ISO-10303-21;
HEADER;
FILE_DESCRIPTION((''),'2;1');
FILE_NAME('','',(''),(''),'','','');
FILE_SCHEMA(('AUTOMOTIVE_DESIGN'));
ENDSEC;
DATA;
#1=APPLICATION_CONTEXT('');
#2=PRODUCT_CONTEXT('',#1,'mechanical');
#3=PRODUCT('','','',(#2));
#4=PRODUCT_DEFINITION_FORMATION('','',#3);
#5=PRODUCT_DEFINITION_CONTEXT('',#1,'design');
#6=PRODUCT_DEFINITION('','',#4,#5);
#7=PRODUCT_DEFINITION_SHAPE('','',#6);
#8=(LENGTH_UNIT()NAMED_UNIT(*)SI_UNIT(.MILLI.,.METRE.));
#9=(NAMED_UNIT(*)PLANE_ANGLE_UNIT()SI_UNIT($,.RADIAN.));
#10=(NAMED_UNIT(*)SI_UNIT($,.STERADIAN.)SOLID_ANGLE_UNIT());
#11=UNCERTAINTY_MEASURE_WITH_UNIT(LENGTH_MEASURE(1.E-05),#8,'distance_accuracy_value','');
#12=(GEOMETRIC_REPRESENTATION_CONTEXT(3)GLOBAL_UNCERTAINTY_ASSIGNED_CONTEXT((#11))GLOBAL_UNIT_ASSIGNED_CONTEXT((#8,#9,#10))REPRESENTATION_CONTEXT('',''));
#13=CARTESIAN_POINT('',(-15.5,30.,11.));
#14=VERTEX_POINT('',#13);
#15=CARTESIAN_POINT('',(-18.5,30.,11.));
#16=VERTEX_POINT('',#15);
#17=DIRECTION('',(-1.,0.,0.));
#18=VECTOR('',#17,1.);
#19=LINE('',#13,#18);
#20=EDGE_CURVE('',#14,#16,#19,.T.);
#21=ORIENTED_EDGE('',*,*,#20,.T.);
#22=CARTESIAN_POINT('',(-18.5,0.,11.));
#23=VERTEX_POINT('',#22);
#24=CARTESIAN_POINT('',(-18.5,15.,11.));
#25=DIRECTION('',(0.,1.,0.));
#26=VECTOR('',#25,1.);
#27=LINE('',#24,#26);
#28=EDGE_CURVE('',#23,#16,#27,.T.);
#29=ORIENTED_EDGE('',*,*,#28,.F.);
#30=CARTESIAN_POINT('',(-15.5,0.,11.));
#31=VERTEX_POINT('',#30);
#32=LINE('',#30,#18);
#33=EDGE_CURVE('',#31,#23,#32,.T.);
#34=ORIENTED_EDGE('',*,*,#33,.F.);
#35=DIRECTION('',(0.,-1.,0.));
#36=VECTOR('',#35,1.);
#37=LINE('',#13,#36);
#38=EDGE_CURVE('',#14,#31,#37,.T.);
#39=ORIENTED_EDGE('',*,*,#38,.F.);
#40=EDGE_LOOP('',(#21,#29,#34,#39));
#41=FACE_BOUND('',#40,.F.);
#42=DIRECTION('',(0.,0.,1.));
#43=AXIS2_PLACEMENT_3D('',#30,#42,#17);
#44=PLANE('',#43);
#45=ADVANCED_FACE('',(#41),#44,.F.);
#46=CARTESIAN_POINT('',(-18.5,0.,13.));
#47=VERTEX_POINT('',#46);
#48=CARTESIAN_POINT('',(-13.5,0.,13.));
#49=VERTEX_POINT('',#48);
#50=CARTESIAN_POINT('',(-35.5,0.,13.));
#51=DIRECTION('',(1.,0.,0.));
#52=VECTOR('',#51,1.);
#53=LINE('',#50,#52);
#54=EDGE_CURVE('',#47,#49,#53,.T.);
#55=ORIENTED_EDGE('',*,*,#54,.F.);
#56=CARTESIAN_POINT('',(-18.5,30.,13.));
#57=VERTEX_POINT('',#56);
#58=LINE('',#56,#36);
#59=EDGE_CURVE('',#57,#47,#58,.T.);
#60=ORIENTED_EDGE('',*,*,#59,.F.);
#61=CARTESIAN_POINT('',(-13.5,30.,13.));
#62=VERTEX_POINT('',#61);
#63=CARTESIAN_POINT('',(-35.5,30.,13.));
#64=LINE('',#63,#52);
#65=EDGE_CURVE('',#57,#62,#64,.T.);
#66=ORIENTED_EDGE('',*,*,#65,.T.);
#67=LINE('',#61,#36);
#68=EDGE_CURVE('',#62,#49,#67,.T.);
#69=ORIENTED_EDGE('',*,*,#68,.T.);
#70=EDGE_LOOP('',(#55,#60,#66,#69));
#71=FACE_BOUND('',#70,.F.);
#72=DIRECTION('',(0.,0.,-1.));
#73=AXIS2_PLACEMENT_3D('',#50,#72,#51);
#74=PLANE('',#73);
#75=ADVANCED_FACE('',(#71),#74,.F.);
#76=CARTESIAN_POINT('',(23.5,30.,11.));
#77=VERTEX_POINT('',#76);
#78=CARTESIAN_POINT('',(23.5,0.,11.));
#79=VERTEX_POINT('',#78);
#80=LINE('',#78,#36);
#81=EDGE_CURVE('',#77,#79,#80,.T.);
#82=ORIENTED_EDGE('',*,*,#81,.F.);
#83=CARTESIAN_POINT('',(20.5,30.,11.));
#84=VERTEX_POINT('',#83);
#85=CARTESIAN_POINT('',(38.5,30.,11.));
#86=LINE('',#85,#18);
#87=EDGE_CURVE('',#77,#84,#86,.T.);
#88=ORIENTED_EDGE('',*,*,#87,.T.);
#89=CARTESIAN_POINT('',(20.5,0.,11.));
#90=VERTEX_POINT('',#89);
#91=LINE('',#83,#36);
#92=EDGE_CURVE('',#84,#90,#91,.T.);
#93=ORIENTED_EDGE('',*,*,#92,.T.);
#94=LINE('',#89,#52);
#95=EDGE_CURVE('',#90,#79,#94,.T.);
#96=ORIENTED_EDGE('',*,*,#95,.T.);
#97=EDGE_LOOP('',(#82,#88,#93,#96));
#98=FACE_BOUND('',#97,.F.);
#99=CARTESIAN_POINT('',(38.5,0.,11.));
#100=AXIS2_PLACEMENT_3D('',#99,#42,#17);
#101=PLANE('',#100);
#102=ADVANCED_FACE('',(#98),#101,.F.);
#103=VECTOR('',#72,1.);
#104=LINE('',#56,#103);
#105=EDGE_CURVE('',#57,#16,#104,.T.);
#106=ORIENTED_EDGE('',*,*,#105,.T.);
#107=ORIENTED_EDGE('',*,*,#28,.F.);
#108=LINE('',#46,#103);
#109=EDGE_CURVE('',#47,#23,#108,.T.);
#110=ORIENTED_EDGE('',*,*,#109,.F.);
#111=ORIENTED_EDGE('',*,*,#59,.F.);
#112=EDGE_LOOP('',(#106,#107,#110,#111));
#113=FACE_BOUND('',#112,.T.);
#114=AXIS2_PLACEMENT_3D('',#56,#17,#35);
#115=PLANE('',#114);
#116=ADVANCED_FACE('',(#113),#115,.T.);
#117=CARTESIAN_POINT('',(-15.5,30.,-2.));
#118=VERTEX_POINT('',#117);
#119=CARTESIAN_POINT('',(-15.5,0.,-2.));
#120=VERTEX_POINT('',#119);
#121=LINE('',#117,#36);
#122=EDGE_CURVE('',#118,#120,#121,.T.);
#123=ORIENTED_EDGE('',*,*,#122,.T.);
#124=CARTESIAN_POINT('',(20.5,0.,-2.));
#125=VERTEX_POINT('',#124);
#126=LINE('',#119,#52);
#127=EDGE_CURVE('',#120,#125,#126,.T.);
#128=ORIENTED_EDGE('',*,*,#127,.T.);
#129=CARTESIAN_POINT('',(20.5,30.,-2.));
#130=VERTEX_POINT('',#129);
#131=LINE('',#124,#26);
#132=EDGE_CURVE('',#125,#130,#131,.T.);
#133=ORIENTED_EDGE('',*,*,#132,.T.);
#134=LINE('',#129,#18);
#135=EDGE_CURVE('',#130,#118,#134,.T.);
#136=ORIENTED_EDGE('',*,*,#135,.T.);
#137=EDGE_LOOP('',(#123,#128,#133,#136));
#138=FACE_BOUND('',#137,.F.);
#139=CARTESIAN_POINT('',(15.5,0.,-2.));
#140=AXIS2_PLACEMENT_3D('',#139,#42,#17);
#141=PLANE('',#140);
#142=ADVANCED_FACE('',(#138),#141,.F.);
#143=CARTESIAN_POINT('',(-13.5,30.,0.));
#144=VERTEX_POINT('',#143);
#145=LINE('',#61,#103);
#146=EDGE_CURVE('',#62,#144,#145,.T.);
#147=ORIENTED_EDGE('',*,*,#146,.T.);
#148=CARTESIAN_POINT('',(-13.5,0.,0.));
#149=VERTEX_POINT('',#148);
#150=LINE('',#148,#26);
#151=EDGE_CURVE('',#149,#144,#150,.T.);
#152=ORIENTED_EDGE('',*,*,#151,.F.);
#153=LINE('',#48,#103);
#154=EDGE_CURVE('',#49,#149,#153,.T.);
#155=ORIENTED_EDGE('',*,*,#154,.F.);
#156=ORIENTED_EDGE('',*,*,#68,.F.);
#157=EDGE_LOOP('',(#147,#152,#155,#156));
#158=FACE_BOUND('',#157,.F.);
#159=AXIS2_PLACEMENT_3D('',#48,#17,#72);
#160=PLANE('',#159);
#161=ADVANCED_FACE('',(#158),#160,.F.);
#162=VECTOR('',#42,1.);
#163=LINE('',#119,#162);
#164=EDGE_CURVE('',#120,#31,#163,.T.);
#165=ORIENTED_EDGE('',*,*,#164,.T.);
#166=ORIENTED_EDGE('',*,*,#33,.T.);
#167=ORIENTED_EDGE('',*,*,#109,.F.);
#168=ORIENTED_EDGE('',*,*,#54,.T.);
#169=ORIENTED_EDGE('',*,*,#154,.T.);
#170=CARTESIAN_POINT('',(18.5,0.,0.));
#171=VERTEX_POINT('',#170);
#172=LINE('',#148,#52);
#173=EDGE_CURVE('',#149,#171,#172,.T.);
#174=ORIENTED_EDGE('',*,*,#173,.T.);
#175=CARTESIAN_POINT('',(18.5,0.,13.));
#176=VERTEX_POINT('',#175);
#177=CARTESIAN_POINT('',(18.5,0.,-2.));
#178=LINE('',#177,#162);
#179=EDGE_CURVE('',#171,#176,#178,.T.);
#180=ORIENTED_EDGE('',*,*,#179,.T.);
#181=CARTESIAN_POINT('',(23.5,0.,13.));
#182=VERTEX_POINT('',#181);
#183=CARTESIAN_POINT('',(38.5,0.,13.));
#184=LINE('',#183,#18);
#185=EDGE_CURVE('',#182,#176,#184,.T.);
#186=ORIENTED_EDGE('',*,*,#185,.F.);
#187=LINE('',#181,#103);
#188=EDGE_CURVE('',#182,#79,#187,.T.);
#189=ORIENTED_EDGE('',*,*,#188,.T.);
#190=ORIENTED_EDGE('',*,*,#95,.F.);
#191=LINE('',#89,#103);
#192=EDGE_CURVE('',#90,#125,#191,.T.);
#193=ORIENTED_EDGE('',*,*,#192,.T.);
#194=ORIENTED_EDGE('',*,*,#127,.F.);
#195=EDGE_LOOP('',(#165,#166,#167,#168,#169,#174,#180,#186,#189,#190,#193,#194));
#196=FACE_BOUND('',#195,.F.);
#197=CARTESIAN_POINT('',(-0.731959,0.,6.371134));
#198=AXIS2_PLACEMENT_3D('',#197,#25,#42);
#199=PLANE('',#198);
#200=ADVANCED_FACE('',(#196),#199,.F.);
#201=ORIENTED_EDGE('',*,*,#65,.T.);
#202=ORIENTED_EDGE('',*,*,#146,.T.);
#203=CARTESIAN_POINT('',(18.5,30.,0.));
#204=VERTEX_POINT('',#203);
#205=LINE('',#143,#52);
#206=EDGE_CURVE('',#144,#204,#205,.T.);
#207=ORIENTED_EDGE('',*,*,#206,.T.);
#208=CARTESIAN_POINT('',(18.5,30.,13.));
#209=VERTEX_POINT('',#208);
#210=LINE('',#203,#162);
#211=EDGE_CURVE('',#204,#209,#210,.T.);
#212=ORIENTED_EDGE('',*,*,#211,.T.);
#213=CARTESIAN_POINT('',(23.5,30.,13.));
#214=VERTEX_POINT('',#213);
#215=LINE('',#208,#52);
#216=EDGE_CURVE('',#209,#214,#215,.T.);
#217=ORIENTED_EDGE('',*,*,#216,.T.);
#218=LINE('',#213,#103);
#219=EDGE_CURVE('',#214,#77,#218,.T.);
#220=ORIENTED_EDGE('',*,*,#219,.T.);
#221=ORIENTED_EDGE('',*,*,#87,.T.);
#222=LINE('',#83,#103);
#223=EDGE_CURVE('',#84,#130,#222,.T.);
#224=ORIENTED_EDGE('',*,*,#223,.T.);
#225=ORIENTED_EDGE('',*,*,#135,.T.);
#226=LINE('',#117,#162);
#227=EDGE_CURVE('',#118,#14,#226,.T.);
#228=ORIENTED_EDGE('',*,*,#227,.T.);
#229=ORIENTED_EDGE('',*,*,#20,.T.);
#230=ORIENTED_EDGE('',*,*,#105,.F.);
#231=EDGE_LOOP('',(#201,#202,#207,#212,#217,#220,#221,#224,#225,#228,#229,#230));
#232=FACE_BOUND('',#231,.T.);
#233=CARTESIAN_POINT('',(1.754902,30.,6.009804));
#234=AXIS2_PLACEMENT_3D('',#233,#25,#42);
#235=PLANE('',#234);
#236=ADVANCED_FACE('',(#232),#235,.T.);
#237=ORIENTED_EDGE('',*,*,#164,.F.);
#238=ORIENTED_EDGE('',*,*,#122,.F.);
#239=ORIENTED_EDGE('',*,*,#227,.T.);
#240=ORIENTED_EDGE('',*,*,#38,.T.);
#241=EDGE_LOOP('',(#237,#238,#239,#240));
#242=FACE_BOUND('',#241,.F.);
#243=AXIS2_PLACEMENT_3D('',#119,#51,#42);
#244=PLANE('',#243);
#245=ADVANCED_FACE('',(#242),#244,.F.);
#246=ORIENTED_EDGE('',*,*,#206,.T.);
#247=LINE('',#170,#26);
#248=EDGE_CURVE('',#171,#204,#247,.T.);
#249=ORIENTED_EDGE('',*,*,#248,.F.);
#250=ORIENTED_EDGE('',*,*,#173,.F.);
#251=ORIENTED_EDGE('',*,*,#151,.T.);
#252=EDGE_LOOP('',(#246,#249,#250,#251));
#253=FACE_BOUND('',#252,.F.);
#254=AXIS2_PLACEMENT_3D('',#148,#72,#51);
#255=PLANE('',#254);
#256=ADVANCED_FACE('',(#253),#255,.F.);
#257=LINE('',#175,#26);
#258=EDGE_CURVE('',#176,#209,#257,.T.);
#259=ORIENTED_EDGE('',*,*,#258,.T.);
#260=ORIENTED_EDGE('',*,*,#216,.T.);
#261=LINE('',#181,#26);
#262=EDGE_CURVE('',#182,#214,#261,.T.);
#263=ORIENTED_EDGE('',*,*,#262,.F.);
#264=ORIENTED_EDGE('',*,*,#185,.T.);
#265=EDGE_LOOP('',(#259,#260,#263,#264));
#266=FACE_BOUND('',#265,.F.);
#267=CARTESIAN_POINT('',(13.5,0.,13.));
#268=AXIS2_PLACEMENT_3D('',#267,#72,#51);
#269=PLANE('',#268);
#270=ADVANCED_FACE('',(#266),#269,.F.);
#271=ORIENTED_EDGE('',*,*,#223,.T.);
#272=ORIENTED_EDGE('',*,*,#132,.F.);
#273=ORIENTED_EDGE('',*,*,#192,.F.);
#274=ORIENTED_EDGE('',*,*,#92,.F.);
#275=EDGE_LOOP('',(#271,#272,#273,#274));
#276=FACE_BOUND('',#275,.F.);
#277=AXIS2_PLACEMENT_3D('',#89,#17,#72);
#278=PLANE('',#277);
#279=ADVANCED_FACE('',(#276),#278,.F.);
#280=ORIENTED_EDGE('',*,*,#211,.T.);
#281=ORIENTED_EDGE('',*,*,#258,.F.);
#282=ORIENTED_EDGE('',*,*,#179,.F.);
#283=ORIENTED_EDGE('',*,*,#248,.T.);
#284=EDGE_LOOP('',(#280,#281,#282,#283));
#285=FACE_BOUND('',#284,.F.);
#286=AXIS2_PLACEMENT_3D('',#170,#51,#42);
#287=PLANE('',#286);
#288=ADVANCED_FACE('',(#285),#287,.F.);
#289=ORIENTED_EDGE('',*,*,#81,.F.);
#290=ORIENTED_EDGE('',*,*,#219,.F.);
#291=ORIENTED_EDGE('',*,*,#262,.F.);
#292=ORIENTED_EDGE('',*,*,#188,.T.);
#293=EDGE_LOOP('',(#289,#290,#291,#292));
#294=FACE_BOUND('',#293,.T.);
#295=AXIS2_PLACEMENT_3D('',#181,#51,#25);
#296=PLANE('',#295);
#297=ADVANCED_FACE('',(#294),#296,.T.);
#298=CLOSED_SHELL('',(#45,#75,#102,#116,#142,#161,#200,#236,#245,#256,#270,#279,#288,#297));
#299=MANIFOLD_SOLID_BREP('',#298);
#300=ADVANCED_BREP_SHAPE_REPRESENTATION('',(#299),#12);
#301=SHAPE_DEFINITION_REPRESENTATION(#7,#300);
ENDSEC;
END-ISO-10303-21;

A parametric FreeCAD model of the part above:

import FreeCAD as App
import Part
import Sketcher


def add_polygon(sketch, points):
    """Adds a closed chain of lines whose ends are joined by coincident constraints."""
    first, n = sketch.GeometryCount, len(points)
    for a, b in zip(points, points[1:] + points[:1]):
        sketch.addGeometry(Part.LineSegment(App.Vector(*a, 0), App.Vector(*b, 0)), False)
    for i in range(n):
        sketch.addConstraint(Sketcher.Constraint("Coincident", first + i, 2, first + (i + 1) % n, 1))

doc = App.newDocument("Part")
params = doc.addObject("Spreadsheet::Sheet", "Params")
for row, (alias, value) in enumerate([
    ("sketch1_width", "22 mm"),
    ("sketch1_width2", "20 mm"),
    ("sketch1_width3", "31 mm"),
    ("sketch1_height", "13 mm"),
    ("sketch1_height2", "2 mm"),
    ("pad1_length", "20 mm"),
    ("sketch2_width", "18 mm"),
    ("sketch2_width2", "20 mm"),
    ("sketch2_width3", "32 mm"),
    ("sketch2_width4", "22 mm"),
    ("sketch2_height", "13 mm"),
    ("pad2_length", "30 mm"),
    ("sketch3_width", "5 mm"),
    ("sketch3_height", "20 mm"),
    ("pocket1_length", "15 mm"),
    ("sketch4_width", "5 mm"),
    ("sketch4_height", "20 mm"),
    ("pad3_length", "2 mm"),
    ("sketch5_width", "17 mm"),
    ("sketch5_width2", "15 mm"),
    ("sketch5_height", "30 mm"),
], start=1):
    params.set(f"A{row}", alias)
    params.set(f"B{row}", "=" + value)
    params.setAlias(f"B{row}", alias)

body = doc.addObject("PartDesign::Body", "Body")

sketch1 = body.newObject("Sketcher::SketchObject", "Sketch")
sketch1.AttachmentSupport = (doc.getObject("XZ_Plane"), [""])
sketch1.MapMode = "FlatFace"
add_polygon(sketch1, [(-13.5, 0), (-13.5, 13), (-35.5, 13), (-35.5, 11), (-15.5, 11), (-15.5, -2), (15.5, -2), (15.5, 11), (33.5, 11), (33.5, 13), (13.5, 13), (13.5, 0)])
sketch1.addConstraint(Sketcher.Constraint("Vertical", 0))
sketch1.addConstraint(Sketcher.Constraint("Horizontal", 1))
sketch1.addConstraint(Sketcher.Constraint("Vertical", 2))
sketch1.addConstraint(Sketcher.Constraint("Horizontal", 3))
sketch1.addConstraint(Sketcher.Constraint("Vertical", 4))
sketch1.addConstraint(Sketcher.Constraint("Horizontal", 5))
sketch1.addConstraint(Sketcher.Constraint("Vertical", 6))
sketch1.addConstraint(Sketcher.Constraint("Horizontal", 7))
sketch1.addConstraint(Sketcher.Constraint("Vertical", 8))
sketch1.addConstraint(Sketcher.Constraint("Horizontal", 9))
sketch1.addConstraint(Sketcher.Constraint("Vertical", 10))
sketch1.addConstraint(Sketcher.Constraint("Horizontal", 11))
sketch1.addConstraint(Sketcher.Constraint("Symmetric", 10, 2, 11, 2, -1, 1))
sketch1.addConstraint(Sketcher.Constraint("Symmetric", 3, 2, 6, 2, -2))
sketch1.addConstraint(Sketcher.Constraint("Horizontal", 1, 2, 8, 2))
sketch1.addConstraint(Sketcher.Constraint("Equal", 3, 9))
sketch1.addConstraint(Sketcher.Constraint("Equal", 0, 4))
sketch1.addConstraint(Sketcher.Constraint("DistanceX", 1, 2, 1, 1, 22.0))
sketch1.addConstraint(Sketcher.Constraint("DistanceX", 3, 1, 3, 2, 20.0))
sketch1.addConstraint(Sketcher.Constraint("DistanceX", 5, 1, 5, 2, 31.0))
sketch1.addConstraint(Sketcher.Constraint("DistanceY", 0, 1, 0, 2, 13.0))
sketch1.addConstraint(Sketcher.Constraint("DistanceY", 2, 2, 2, 1, 2.0))
sketch1.setExpression("Constraints[29]", "Params.sketch1_width")
sketch1.setExpression("Constraints[30]", "Params.sketch1_width2")
sketch1.setExpression("Constraints[31]", "Params.sketch1_width3")
sketch1.setExpression("Constraints[32]", "Params.sketch1_height")
sketch1.setExpression("Constraints[33]", "Params.sketch1_height2")
pad1 = body.newObject("PartDesign::Pad", "Pad")
pad1.Profile = sketch1
pad1.setExpression("Length", "Params.pad1_length")
pad1.Reversed = True

sketch2 = body.newObject("Sketcher::SketchObject", "Sketch001")
sketch2.AttachmentSupport = (doc.getObject("XZ_Plane"), [""])
sketch2.MapMode = "FlatFace"
add_polygon(sketch2, [(20.5, -2), (20.5, 11), (38.5, 11), (38.5, 13), (18.5, 13), (18.5, 0), (-13.5, 0), (-13.5, 13), (-35.5, 13), (-35.5, 11), (-15.5, 11), (-15.5, -2)])
sketch2.addConstraint(Sketcher.Constraint("Vertical", 0))
sketch2.addConstraint(Sketcher.Constraint("Horizontal", 1))
sketch2.addConstraint(Sketcher.Constraint("Vertical", 2))
sketch2.addConstraint(Sketcher.Constraint("Horizontal", 3))
sketch2.addConstraint(Sketcher.Constraint("Vertical", 4))
sketch2.addConstraint(Sketcher.Constraint("Horizontal", 5))
sketch2.addConstraint(Sketcher.Constraint("Vertical", 6))
sketch2.addConstraint(Sketcher.Constraint("Horizontal", 7))
sketch2.addConstraint(Sketcher.Constraint("Vertical", 8))
sketch2.addConstraint(Sketcher.Constraint("Horizontal", 9))
sketch2.addConstraint(Sketcher.Constraint("Vertical", 10))
sketch2.addConstraint(Sketcher.Constraint("Horizontal", 11))
sketch2.addConstraint(Sketcher.Constraint("PointOnObject", 4, 2, -1))
sketch2.addConstraint(Sketcher.Constraint("Horizontal", 3, 2, 6, 2))
sketch2.addConstraint(Sketcher.Constraint("Horizontal", 1, 2, 8, 2))
sketch2.addConstraint(Sketcher.Constraint("Equal", 3, 9))
sketch2.addConstraint(Sketcher.Constraint("Equal", 0, 4))
sketch2.addConstraint(Sketcher.Constraint("DistanceX", 1, 1, 1, 2, 18.0))
sketch2.addConstraint(Sketcher.Constraint("DistanceX", 3, 2, 3, 1, 20.0))
sketch2.addConstraint(Sketcher.Constraint("DistanceX", 5, 2, 5, 1, 32.0))
sketch2.addConstraint(Sketcher.Constraint("DistanceX", 7, 2, 7, 1, 22.0))
sketch2.addConstraint(Sketcher.Constraint("DistanceY", 0, 1, 0, 2, 13.0))
sketch2.addConstraint(Sketcher.Constraint("DistanceY", 2, 1, 2, 2, 2.0))
sketch2.addConstraint(Sketcher.Constraint("DistanceX", -1, 1, 0, 2, 20.5))
sketch2.setExpression("Constraints[29]", "Params.sketch2_width")
sketch2.setExpression("Constraints[30]", "Params.sketch2_width2")
sketch2.setExpression("Constraints[31]", "Params.sketch2_width3")
sketch2.setExpression("Constraints[32]", "Params.sketch2_width4")
sketch2.setExpression("Constraints[33]", "Params.sketch2_height")
pad2 = body.newObject("PartDesign::Pad", "Pad001")
pad2.Profile = sketch2
pad2.setExpression("Length", "Params.pad2_length")
pad2.Reversed = True

sketch3 = body.newObject("Sketcher::SketchObject", "Sketch002")
sketch3.AttachmentSupport = (doc.getObject("XY_Plane"), [""])
sketch3.MapMode = "FlatFace"
sketch3.AttachmentOffset = App.Placement(App.Vector(0, 0, 13), App.Rotation())
add_polygon(sketch3, [(14, 20), (14, 0), (18, 0), (18, 20)])
sketch3.addConstraint(Sketcher.Constraint("Vertical", 0))
sketch3.addConstraint(Sketcher.Constraint("Horizontal", 1))
sketch3.addConstraint(Sketcher.Constraint("Vertical", 2))
sketch3.addConstraint(Sketcher.Constraint("Horizontal", 3))
sketch3.addConstraint(Sketcher.Constraint("PointOnObject", 0, 2, -1))
sketch3.addConstraint(Sketcher.Constraint("DistanceX", 1, 1, 1, 2, 5.0))
sketch3.addConstraint(Sketcher.Constraint("DistanceY", 0, 2, 0, 1, 20.0))
sketch3.addConstraint(Sketcher.Constraint("DistanceX", -1, 1, 0, 2, 13.5))
sketch3.setExpression("Constraints[9]", "Params.sketch3_width")
sketch3.setExpression("Constraints[10]", "Params.sketch3_height")
pocket1 = body.newObject("PartDesign::Pocket", "Pocket")
pocket1.Profile = sketch3
pocket1.setExpression("Length", "Params.pocket1_length")

sketch4 = body.newObject("Sketcher::SketchObject", "Sketch003")
sketch4.AttachmentSupport = (doc.getObject("XY_Plane"), [""])
sketch4.MapMode = "FlatFace"
sketch4.AttachmentOffset = App.Placement(App.Vector(0, 0, -2), App.Rotation())
add_polygon(sketch4, [(13, 0), (14, 20), (18, 20), (18, 0)])
sketch4.addConstraint(Sketcher.Constraint("Horizontal", 1))
sketch4.addConstraint(Sketcher.Constraint("Vertical", 2))
sketch4.addConstraint(Sketcher.Constraint("Horizontal", 3))
sketch4.addConstraint(Sketcher.Constraint("PointOnObject", 2, 2, -1))
sketch4.addConstraint(Sketcher.Constraint("DistanceX", 1, 1, 1, 2, 5.0))
sketch4.addConstraint(Sketcher.Constraint("DistanceY", 2, 2, 2, 1, 20.0))
sketch4.addConstraint(Sketcher.Constraint("DistanceX", -1, 1, 0, 2, 13.5))
sketch4.addConstraint(Sketcher.Constraint("DistanceX", 3, 2, 3, 1, 5.0533))
sketch4.setExpression("Constraints[8]", "Params.sketch4_width")
sketch4.setExpression("Constraints[9]", "Params.sketch4_height")
pad3 = body.newObject("PartDesign::Pad", "Pad002")
pad3.Profile = sketch4
pad3.setExpression("Length", "Params.pad3_length")

sketch5 = body.newObject("Sketcher::SketchObject", "Sketch004")
sketch5.AttachmentSupport = (doc.getObject("XY_Plane"), [""])
sketch5.MapMode = "FlatFace"
sketch5.AttachmentOffset = App.Placement(App.Vector(0, 0, 13), App.Rotation())
add_polygon(sketch5, [(-18, 0), (-18, 30), (-36, 30), (-36, 0)])
add_polygon(sketch5, [(24, 30), (24, 0), (38, 0), (38, 30)])
sketch5.addConstraint(Sketcher.Constraint("Vertical", 0))
sketch5.addConstraint(Sketcher.Constraint("Horizontal", 1))
sketch5.addConstraint(Sketcher.Constraint("Vertical", 2))
sketch5.addConstraint(Sketcher.Constraint("Horizontal", 3))
sketch5.addConstraint(Sketcher.Constraint("Vertical", 4))
sketch5.addConstraint(Sketcher.Constraint("Horizontal", 5))
sketch5.addConstraint(Sketcher.Constraint("Vertical", 6))
sketch5.addConstraint(Sketcher.Constraint("Horizontal", 7))
sketch5.addConstraint(Sketcher.Constraint("PointOnObject", 2, 2, -1))
sketch5.addConstraint(Sketcher.Constraint("PointOnObject", 4, 2, -1))
sketch5.addConstraint(Sketcher.Constraint("Horizontal", 1, 2, 6, 2))
sketch5.addConstraint(Sketcher.Constraint("DistanceX", 1, 2, 1, 1, 17.0))
sketch5.addConstraint(Sketcher.Constraint("DistanceX", 5, 1, 5, 2, 15.0))
sketch5.addConstraint(Sketcher.Constraint("DistanceY", 0, 1, 0, 2, 30.0))
sketch5.addConstraint(Sketcher.Constraint("DistanceX", 3, 2, 4, 2, 42.0))
sketch5.addConstraint(Sketcher.Constraint("DistanceX", 0, 2, -1, 1, 18.5))
sketch5.setExpression("Constraints[19]", "Params.sketch5_width")
sketch5.setExpression("Constraints[20]", "Params.sketch5_width2")
sketch5.setExpression("Constraints[21]", "Params.sketch5_height")
pocket2 = body.newObject("PartDesign::Pocket", "Pocket001")
pocket2.Profile = sketch5
pocket2.Type = "UpToFirst"

doc.recompute()
